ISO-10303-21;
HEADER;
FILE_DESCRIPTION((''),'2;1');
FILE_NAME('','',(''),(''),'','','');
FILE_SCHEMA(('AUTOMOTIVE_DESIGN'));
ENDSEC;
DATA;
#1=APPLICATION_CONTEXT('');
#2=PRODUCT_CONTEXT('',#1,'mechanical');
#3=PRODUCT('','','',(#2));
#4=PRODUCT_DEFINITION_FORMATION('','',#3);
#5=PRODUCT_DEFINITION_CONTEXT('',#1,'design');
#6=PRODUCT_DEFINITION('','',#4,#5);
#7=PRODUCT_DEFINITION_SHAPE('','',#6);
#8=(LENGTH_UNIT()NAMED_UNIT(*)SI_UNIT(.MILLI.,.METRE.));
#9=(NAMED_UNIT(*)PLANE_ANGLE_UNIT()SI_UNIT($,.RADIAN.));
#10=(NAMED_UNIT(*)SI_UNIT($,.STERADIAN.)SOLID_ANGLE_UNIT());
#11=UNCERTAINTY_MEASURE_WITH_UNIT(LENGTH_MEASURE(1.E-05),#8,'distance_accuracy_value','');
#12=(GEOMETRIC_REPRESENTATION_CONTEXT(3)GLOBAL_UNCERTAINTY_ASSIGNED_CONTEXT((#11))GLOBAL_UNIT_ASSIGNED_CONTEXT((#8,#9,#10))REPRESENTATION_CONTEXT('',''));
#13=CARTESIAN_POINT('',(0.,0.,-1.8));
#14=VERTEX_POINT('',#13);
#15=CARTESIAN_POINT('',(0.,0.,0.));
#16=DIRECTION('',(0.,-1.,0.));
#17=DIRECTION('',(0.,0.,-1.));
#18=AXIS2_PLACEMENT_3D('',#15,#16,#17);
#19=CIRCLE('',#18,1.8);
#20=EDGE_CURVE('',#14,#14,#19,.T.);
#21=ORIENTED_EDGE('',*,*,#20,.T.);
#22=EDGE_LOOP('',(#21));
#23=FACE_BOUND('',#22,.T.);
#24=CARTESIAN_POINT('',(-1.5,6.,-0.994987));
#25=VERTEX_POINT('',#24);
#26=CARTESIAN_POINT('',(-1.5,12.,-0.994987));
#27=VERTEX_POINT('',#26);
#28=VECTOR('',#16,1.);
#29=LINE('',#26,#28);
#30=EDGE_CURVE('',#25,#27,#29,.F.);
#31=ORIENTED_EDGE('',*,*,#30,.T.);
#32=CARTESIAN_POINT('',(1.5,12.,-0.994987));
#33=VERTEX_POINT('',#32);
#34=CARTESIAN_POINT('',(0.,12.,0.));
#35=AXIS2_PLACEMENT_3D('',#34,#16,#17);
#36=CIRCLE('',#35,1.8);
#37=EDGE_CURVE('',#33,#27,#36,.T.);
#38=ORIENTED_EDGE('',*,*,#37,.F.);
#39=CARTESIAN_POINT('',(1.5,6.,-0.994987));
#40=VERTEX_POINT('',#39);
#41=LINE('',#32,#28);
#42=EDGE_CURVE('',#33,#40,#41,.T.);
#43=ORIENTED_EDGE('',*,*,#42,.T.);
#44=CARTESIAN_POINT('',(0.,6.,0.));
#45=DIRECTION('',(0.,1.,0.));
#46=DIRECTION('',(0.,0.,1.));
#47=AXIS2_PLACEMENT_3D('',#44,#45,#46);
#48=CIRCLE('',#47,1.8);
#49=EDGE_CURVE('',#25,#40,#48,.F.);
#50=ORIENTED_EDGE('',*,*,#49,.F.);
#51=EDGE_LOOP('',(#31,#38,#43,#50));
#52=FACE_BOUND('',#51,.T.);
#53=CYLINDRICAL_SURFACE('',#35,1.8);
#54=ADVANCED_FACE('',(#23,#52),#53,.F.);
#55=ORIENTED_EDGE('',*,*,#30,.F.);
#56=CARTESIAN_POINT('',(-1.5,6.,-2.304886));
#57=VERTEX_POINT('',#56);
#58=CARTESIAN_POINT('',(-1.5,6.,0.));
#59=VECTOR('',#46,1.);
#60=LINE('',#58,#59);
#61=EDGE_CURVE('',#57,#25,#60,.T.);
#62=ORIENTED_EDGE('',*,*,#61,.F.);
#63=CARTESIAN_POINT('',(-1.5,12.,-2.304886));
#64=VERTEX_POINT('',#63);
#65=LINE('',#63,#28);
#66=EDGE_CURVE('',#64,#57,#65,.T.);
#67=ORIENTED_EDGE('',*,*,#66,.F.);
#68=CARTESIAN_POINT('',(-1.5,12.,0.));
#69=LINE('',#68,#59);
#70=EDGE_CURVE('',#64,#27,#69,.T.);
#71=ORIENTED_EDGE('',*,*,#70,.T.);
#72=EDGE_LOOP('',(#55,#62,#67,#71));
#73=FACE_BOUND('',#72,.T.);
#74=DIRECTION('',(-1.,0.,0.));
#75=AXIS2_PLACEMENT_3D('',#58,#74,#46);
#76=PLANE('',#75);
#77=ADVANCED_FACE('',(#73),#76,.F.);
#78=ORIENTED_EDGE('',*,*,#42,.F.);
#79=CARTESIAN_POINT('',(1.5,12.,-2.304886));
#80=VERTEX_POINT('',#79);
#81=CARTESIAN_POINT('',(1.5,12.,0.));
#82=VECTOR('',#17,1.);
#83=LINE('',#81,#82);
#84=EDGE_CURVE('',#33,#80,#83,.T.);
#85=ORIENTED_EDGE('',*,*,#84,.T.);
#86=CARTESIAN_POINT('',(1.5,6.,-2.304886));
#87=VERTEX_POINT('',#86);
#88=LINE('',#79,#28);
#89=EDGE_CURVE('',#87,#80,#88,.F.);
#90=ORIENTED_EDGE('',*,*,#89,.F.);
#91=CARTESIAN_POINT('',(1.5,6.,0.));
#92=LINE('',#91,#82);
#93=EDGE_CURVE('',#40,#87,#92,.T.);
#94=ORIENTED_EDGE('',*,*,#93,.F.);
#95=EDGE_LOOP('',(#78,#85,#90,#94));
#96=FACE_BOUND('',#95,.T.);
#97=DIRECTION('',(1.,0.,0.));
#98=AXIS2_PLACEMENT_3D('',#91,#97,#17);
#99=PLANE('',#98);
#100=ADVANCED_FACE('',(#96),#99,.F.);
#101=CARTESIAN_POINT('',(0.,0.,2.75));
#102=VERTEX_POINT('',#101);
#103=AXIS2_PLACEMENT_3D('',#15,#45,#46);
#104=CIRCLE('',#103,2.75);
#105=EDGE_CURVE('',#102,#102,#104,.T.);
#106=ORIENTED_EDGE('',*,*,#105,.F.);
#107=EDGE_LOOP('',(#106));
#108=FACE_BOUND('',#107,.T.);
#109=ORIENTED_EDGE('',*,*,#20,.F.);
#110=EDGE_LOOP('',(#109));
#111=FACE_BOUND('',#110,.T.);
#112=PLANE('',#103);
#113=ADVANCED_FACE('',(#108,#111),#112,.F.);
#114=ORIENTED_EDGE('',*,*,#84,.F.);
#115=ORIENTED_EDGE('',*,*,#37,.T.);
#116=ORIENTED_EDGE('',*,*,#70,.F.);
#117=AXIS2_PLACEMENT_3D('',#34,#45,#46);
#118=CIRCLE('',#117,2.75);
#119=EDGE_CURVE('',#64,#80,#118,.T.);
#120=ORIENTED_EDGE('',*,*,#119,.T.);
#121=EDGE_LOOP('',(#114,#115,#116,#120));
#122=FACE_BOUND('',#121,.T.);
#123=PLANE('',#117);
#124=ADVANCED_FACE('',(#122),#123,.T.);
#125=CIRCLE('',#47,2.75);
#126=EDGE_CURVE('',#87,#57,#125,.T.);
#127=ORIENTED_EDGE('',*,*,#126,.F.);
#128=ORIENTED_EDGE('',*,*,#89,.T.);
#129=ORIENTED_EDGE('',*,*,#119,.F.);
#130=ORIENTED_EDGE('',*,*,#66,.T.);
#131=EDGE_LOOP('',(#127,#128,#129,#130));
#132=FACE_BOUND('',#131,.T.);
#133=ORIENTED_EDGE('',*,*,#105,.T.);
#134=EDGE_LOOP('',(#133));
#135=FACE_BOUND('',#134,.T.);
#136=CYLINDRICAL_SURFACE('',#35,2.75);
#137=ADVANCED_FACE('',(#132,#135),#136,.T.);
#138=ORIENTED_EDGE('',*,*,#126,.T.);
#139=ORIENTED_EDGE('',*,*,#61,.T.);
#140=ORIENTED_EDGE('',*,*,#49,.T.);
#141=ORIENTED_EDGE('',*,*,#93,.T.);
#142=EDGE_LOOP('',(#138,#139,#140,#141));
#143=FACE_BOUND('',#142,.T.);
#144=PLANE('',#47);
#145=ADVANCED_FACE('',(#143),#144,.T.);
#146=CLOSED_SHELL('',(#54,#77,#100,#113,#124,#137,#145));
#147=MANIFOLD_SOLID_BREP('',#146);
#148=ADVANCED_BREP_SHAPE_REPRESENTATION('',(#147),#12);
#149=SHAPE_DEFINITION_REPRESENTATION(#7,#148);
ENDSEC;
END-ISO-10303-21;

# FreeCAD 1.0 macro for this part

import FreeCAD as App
import Part
import Sketcher
Q = App.Units.Quantity


def add_polygon(sketch, points):
    """Adds a closed chain of lines whose ends are joined by coincident constraints."""
    first, n = sketch.GeometryCount, len(points)
    for a, b in zip(points, points[1:] + points[:1]):
        sketch.addGeometry(Part.LineSegment(App.Vector(*a, 0), App.Vector(*b, 0)), False)
    for i in range(n):
        sketch.addConstraint(Sketcher.Constraint("Coincident", first + i, 2, first + (i + 1) % n, 1))

doc = App.newDocument("Part")
body = doc.addObject("PartDesign::Body", "Body")

sketch1 = doc.addObject("Sketcher::SketchObject", "Sketch")
body.addObject(sketch1)
sketch1.AttachmentSupport = (doc.XZ_Plane, [""])
sketch1.MapMode = "FlatFace"
sketch1.addGeometry(Part.Circle(App.Vector(0, 0, 0), App.Vector(0, 0, 1), 2.8), False)
sketch1.addConstraint([
    Sketcher.Constraint("Coincident", 0, 3, -1, 1),
    Sketcher.Constraint("Diameter", 0, Q("5.5 mm")),
])
pad1 = doc.addObject("PartDesign::Pad", "Pad")
body.addObject(pad1)
pad1.Profile = sketch1
pad1.Length = 12
pad1.Reversed = True

sketch2 = doc.addObject("Sketcher::SketchObject", "Sketch001")
body.addObject(sketch2)
sketch2.AttachmentSupport = (doc.XZ_Plane, [""])
sketch2.MapMode = "FlatFace"
sketch2.addGeometry(Part.Circle(App.Vector(0, 0, 0), App.Vector(0, 0, 1), 1.8), False)
sketch2.addConstraint([
    Sketcher.Constraint("Coincident", 0, 3, -1, 1),
    Sketcher.Constraint("Diameter", 0, Q("3.6 mm")),
])
pocket1 = doc.addObject("PartDesign::Pocket", "Pocket")
body.addObject(pocket1)
pocket1.Profile = sketch2
pocket1.Length = 12

sketch3 = doc.addObject("Sketcher::SketchObject", "Sketch002")
body.addObject(sketch3)
sketch3.AttachmentSupport = (doc.XZ_Plane, [""])
sketch3.MapMode = "FlatFace"
sketch3.AttachmentOffset = App.Placement(App.Vector(0, 0, -12), App.Rotation())
add_polygon(sketch3, [(-1.5, -2.8), (-1.5, 0), (1.5, 0), (1.5, -2.8)])
sketch3.addConstraint([
    Sketcher.Constraint("Vertical", 0),
    Sketcher.Constraint("Horizontal", 1),
    Sketcher.Constraint("Vertical", 2),
    Sketcher.Constraint("Horizontal", 3),
    Sketcher.Constraint("Symmetric", 0, 2, 1, 2, -1, 1),
    Sketcher.Constraint("DistanceX", 1, 1, 1, 2, Q("3 mm")),
    Sketcher.Constraint("DistanceY", 0, 1, 0, 2, Q("2.75 mm")),
])
pocket2 = doc.addObject("PartDesign::Pocket", "Pocket001")
body.addObject(pocket2)
pocket2.Profile = sketch3
pocket2.Length = 6
pocket2.Reversed = True

doc.recompute()
